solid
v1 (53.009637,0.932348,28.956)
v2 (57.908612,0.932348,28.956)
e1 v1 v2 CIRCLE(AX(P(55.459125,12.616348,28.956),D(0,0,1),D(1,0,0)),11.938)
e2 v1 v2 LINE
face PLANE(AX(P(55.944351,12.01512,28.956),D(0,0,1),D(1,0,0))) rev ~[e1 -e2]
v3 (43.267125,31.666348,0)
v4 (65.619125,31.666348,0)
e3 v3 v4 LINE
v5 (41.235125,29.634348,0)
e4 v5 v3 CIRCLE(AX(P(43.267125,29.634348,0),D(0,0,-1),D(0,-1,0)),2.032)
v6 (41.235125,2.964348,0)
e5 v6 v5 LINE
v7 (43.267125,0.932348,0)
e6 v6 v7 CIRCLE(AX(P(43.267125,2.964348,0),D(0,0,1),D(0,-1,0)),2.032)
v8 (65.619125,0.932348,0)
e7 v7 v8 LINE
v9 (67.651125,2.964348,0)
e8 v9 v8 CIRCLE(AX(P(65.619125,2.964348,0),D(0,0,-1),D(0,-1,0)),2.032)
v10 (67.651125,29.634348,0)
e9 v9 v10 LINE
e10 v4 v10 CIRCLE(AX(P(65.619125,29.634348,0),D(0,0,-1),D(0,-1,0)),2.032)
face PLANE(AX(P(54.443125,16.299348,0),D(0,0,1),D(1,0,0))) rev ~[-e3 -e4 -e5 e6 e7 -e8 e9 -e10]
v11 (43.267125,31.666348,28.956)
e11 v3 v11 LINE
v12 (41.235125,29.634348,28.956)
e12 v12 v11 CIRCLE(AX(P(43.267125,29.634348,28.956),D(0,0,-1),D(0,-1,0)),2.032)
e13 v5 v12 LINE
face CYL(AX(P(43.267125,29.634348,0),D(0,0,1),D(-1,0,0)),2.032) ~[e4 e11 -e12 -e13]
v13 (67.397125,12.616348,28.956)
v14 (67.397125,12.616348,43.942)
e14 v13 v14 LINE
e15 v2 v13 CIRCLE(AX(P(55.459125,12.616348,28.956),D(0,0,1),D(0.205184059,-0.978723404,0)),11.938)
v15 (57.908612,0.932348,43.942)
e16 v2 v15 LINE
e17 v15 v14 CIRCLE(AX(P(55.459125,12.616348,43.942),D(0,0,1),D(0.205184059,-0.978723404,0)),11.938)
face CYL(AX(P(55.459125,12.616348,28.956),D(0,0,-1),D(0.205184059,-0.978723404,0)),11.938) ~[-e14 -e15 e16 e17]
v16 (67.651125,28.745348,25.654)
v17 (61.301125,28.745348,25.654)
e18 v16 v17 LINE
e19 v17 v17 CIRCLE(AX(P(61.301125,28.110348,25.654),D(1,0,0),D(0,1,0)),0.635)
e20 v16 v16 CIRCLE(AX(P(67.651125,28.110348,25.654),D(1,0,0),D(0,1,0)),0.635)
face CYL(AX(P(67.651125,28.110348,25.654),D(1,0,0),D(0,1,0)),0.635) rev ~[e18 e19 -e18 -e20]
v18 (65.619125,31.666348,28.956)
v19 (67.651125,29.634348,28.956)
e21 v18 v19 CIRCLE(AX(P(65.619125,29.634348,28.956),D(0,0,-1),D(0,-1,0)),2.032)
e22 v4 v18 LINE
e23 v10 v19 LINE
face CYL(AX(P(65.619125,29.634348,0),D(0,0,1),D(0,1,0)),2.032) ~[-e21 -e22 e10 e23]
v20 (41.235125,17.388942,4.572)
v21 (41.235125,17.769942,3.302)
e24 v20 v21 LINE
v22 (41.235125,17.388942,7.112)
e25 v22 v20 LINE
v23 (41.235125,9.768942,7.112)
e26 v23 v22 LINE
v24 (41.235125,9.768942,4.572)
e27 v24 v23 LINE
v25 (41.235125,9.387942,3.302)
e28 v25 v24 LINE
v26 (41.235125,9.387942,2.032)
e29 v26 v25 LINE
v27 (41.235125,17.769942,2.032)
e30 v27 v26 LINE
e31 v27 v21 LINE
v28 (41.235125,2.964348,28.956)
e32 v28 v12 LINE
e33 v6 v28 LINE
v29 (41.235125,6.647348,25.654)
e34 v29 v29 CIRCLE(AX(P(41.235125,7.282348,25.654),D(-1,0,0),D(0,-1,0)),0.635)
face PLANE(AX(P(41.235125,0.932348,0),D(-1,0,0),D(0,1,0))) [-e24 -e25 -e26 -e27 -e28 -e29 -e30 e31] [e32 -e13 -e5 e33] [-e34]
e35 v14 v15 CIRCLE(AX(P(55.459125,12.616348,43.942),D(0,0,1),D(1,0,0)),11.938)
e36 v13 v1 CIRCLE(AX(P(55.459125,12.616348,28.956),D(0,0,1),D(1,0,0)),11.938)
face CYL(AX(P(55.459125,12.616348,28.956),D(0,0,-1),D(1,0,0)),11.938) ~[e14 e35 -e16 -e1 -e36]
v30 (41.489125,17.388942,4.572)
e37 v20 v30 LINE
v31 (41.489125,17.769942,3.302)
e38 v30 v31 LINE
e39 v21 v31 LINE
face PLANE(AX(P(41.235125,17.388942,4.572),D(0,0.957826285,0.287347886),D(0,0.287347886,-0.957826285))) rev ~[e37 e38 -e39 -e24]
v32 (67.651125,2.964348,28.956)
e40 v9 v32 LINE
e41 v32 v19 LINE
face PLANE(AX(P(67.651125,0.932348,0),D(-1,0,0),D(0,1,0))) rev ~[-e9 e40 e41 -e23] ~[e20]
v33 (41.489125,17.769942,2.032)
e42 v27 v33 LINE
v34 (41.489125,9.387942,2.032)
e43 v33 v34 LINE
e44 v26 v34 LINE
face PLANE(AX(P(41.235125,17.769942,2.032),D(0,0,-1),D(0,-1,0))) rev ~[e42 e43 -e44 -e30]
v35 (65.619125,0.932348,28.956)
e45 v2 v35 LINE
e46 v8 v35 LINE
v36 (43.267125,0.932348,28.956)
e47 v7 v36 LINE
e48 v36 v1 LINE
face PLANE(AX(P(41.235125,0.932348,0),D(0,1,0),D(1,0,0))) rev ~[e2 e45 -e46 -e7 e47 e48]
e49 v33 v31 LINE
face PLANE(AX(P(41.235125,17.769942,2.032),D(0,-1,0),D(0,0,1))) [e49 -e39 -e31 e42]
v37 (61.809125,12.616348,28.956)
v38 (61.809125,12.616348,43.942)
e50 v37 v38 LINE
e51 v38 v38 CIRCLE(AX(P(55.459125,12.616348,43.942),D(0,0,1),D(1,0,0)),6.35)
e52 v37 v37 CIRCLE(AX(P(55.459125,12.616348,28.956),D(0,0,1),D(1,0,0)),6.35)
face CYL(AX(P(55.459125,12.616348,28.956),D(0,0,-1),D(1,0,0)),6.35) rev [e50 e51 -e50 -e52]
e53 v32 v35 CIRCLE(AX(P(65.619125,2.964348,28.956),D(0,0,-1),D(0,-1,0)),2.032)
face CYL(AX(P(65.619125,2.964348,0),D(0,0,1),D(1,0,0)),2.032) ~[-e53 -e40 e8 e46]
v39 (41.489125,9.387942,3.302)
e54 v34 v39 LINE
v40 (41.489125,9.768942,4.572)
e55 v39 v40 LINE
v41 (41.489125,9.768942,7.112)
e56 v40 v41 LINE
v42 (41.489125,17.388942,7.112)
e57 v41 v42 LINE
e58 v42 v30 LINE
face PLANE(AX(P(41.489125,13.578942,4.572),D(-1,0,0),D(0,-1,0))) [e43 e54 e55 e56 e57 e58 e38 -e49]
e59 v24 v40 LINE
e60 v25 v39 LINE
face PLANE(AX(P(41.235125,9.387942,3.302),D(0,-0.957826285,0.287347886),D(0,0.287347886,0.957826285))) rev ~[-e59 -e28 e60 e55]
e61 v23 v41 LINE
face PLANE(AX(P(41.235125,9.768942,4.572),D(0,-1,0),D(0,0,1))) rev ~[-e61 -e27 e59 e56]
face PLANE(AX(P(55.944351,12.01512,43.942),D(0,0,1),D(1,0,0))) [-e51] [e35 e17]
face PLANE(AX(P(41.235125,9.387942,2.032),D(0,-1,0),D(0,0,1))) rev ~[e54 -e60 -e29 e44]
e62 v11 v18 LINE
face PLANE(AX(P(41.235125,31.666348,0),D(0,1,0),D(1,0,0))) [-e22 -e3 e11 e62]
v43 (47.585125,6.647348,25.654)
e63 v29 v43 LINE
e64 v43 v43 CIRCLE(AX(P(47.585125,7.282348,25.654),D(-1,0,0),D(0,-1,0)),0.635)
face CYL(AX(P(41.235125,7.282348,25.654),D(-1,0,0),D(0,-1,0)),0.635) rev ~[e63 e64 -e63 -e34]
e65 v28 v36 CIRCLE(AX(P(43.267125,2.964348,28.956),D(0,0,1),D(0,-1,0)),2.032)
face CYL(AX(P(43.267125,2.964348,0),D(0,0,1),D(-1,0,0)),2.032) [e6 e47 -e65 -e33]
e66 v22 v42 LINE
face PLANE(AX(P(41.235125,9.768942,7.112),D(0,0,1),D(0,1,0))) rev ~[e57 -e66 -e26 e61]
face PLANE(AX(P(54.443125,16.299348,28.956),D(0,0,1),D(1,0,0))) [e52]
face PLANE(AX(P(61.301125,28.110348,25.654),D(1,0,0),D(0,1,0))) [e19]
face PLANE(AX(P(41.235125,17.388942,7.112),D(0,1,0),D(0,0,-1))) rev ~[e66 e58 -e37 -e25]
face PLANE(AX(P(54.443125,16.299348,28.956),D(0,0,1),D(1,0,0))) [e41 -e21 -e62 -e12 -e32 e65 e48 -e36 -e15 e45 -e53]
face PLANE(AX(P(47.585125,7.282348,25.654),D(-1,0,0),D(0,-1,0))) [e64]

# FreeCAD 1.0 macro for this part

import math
import FreeCAD as App
import Part
import Sketcher
from FreeCAD import Vector
Q = App.Units.Quantity


def edges_at(feature, points):
    """Names of the edges that pass closest to the given points."""
    edges = feature.Shape.Edges
    near = lambda p: min(range(len(edges)), key=lambda i: edges[i].distToShape(Part.Vertex(*p))[0])
    return sorted({f"Edge{near(p) + 1}" for p in points})

doc = App.newDocument("Part")
body = doc.addObject("PartDesign::Body", "Body")

sketch1 = doc.addObject("Sketcher::SketchObject", "Sketch")
body.addObject(sketch1)
sketch1.AttachmentSupport = (doc.XY_Plane, [""])
sketch1.MapMode = "FlatFace"
sketch1.addGeometry(Part.Circle(Vector(0, 0, 0), Vector(0, 0, 1), 12), False)
sketch1.addConstraint([
    Sketcher.Constraint("Coincident", 0, 3, -1, 1),
    Sketcher.Constraint("Diameter", 0, Q("0.94 in")),
])
pad1 = doc.addObject("PartDesign::Pad", "Pad")
body.addObject(pad1)
pad1.Profile = sketch1
pad1.Length = Q("0.59 in")

sketch2 = doc.addObject("Sketcher::SketchObject", "Sketch001")
body.addObject(sketch2)
sketch2.AttachmentSupport = (doc.XY_Plane, [""])
sketch2.MapMode = "FlatFace"
sketch2.AttachmentOffset = App.Placement(Vector(0, 0, 0.59 * 25.4), App.Rotation())
sketch2.addGeometry(Part.Circle(Vector(0, 0, 0), Vector(0, 0, 1), 5), False)
sketch2.addConstraint([
    Sketcher.Constraint("Coincident", 0, 3, -1, 1),
    Sketcher.Constraint("Diameter", 0, Q("10.567176 mm")),
])
pocket1 = doc.addObject("PartDesign::Pocket", "Pocket")
body.addObject(pocket1)
pocket1.Profile = sketch2
pocket1.Length = Q("0.25 in")
body2 = doc.addObject("PartDesign::Body", "Body001")

sketch3 = doc.addObject("Sketcher::SketchObject", "Sketch002")
body2.addObject(sketch3)
sketch3.AttachmentSupport = (doc.getObject("XY_Plane001"), [""])
sketch3.MapMode = "FlatFace"
sketch3.addGeometry([
    Part.LineSegment(Vector(41, 32, 0), Vector(41, 1, 0)),
    Part.LineSegment(Vector(41, 1, 0), Vector(68, 1, 0)),
    Part.LineSegment(Vector(68, 1, 0), Vector(68, 32, 0)),
    Part.LineSegment(Vector(68, 32, 0), Vector(41, 32, 0)),
], False)
sketch3.addConstraint([
    Sketcher.Constraint("Coincident", 0, 2, 1, 1),
    Sketcher.Constraint("Coincident", 1, 2, 2, 1),
    Sketcher.Constraint("Coincident", 2, 2, 3, 1),
    Sketcher.Constraint("Coincident", 3, 2, 0, 1),
    Sketcher.Constraint("Vertical", 0),
    Sketcher.Constraint("Horizontal", 1),
    Sketcher.Constraint("Vertical", 2),
    Sketcher.Constraint("Horizontal", 3),
    Sketcher.Constraint("DistanceX", 1, 1, 1, 2, Q("1.04 in")),
    Sketcher.Constraint("DistanceY", 0, 2, 0, 1, Q("1.21 in")),
    Sketcher.Constraint("DistanceY", -1, 1, 0, 2, Q("0.932348 mm")),
    Sketcher.Constraint("DistanceX", -1, 1, 0, 2, Q("41.235125 mm")),
])
pad2 = doc.addObject("PartDesign::Pad", "Pad001")
body2.addObject(pad2)
pad2.Profile = sketch3
pad2.Length = Q("1.14 in")

sketch4 = doc.addObject("Sketcher::SketchObject", "Sketch003")
body2.addObject(sketch4)
sketch4.AttachmentSupport = (doc.getObject("YZ_Plane001"), [""])
sketch4.MapMode = "FlatFace"
sketch4.AttachmentOffset = App.Placement(Vector(0, 0, 41.235125), App.Rotation())
sketch4.addGeometry(Part.Circle(Vector(7.3, 25.7, 0), Vector(0, 0, 1), 0.6), False)
sketch4.addConstraint([
    Sketcher.Constraint("Diameter", 0, Q("0.05 in")),
    Sketcher.Constraint("DistanceY", -1, 1, 0, 3, Q("1.01 in")),
    Sketcher.Constraint("DistanceX", -1, 1, 0, 3, Q("7.282348 mm")),
])
pocket2 = doc.addObject("PartDesign::Pocket", "Pocket001")
body2.addObject(pocket2)
pocket2.Profile = sketch4
pocket2.Length = Q("0.25 in")
pocket2.Reversed = True

sketch5 = doc.addObject("Sketcher::SketchObject", "Sketch004")
body2.addObject(sketch5)
sketch5.AttachmentSupport = (doc.getObject("YZ_Plane001"), [""])
sketch5.MapMode = "FlatFace"
sketch5.AttachmentOffset = App.Placement(Vector(0, 0, 67.651125), App.Rotation())
sketch5.addGeometry(Part.Circle(Vector(28.1, 25.7, 0), Vector(0, 0, 1), 0.6), False)
sketch5.addConstraint([
    Sketcher.Constraint("Diameter", 0, Q("0.05 in")),
    Sketcher.Constraint("DistanceY", -1, 1, 0, 3, Q("1.01 in")),
    Sketcher.Constraint("DistanceX", -1, 1, 0, 3, Q("28.110348 mm")),
])
pocket3 = doc.addObject("PartDesign::Pocket", "Pocket002")
body2.addObject(pocket3)
pocket3.Profile = sketch5
pocket3.Length = Q("0.25 in")

sketch6 = doc.addObject("Sketcher::SketchObject", "Sketch005")
body2.addObject(sketch6)
sketch6.AttachmentSupport = (doc.getObject("XY_Plane001"), [""])
sketch6.MapMode = "FlatFace"
sketch6.AttachmentOffset = App.Placement(Vector(0, 0, 1.14 * 25.4), App.Rotation())
sketch6.addGeometry([
    Part.ArcOfCircle(Part.Circle(Vector(55, 13, 0), Vector(0, 0, 1), 12), math.radians(-78), math.radians(0)),
    Part.ArcOfCircle(Part.Circle(Vector(55, 13, 0), Vector(0, 0, 1), 12), math.radians(0), math.radians(282)),
    Part.Circle(Vector(55, 13, 0), Vector(0, 0, 1), 6),
], False)
sketch6.addConstraint([
    Sketcher.Constraint("Tangent", 0, 1, 1, 2),
    Sketcher.Constraint("Coincident", 1, 1, 0, 2),
    Sketcher.Constraint("Coincident", 2, 3, 0, 3),
    Sketcher.Constraint("Horizontal", 2, 3, 1, 1),
    Sketcher.Constraint("Diameter", 2, Q("0.5 in")),
    Sketcher.Constraint("Radius", 0, Q("0.47 in")),
    Sketcher.Constraint("DistanceY", 0, 1, 0, 3, Q("0.46 in")),
    Sketcher.Constraint("DistanceY", -1, 1, 0, 3, Q("12.616348 mm")),
    Sketcher.Constraint("DistanceX", -1, 1, 0, 1, Q("57.908612 mm")),
])
pad3 = doc.addObject("PartDesign::Pad", "Pad002")
body2.addObject(pad3)
pad3.Profile = sketch6
pad3.Length = Q("0.59 in")
doc.recompute()

fillet = doc.addObject("PartDesign::Fillet", "Fillet")
body2.addObject(fillet)
fillet.Base = (pad3, edges_at(pad3, [
    (41.235, 31.666, 14.478),
    (67.651, 31.666, 14.478),
    (41.235, 0.932, 14.478),
    (67.651, 0.932, 14.478),
]))
fillet.Radius = Q("0.08 in")

sketch7 = doc.addObject("Sketcher::SketchObject", "Sketch006")
body2.addObject(sketch7)
sketch7.AttachmentSupport = (doc.getObject("YZ_Plane001"), [""])
sketch7.MapMode = "FlatFace"
sketch7.AttachmentOffset = App.Placement(Vector(0, 0, 41.235125), App.Rotation())
sketch7.addGeometry([
    Part.LineSegment(Vector(9.4, 3.3, 0), Vector(9.8, 4.6, 0)),
    Part.LineSegment(Vector(9.8, 4.6, 0), Vector(9.8, 7.1, 0)),
    Part.LineSegment(Vector(9.8, 7.1, 0), Vector(17.4, 7.1, 0)),
    Part.LineSegment(Vector(17.4, 7.1, 0), Vector(17.4, 4.6, 0)),
    Part.LineSegment(Vector(17.4, 4.6, 0), Vector(17.8, 3.3, 0)),
    Part.LineSegment(Vector(17.8, 3.3, 0), Vector(17.8, 2, 0)),
    Part.LineSegment(Vector(17.8, 2, 0), Vector(9.4, 2, 0)),
    Part.LineSegment(Vector(9.4, 2, 0), Vector(9.4, 3.3, 0)),
], False)
sketch7.addConstraint([
    Sketcher.Constraint("Coincident", 0, 2, 1, 1),
    Sketcher.Constraint("Coincident", 1, 2, 2, 1),
    Sketcher.Constraint("Coincident", 2, 2, 3, 1),
    Sketcher.Constraint("Coincident", 3, 2, 4, 1),
    Sketcher.Constraint("Coincident", 4, 2, 5, 1),
    Sketcher.Constraint("Coincident", 5, 2, 6, 1),
    Sketcher.Constraint("Coincident", 6, 2, 7, 1),
    Sketcher.Constraint("Coincident", 7, 2, 0, 1),
    Sketcher.Constraint("Vertical", 1),
    Sketcher.Constraint("Horizontal", 2),
    Sketcher.Constraint("Vertical", 3),
    Sketcher.Constraint("Vertical", 5),
    Sketcher.Constraint("Horizontal", 6),
    Sketcher.Constraint("Vertical", 7),
    Sketcher.Constraint("Horizontal", 0, 2, 3, 2),
    Sketcher.Constraint("Horizontal", 4, 2, 7, 2),
    Sketcher.Constraint("Equal", 0, 4),
    Sketcher.Constraint("DistanceX", 2, 1, 2, 2, Q("0.3 in")),
    Sketcher.Constraint("DistanceY", 1, 1, 1, 2, Q("0.1 in")),
    Sketcher.Constraint("DistanceX", 6, 2, 6, 1, Q("0.33 in")),
    Sketcher.Constraint("DistanceY", 5, 2, 5, 1, Q("0.05 in")),
    Sketcher.Constraint("DistanceY", 5, 2, 3, 2, Q("0.1 in")),
    Sketcher.Constraint("DistanceY", -1, 1, 0, 2, Q("0.18 in")),
    Sketcher.Constraint("DistanceX", -1, 1, 0, 2, Q("9.768942 mm")),
])
pocket4 = doc.addObject("PartDesign::Pocket", "Pocket003")
body2.addObject(pocket4)
pocket4.Profile = sketch7
pocket4.Length = Q("0.01 in")
pocket4.Reversed = True
body.Visibility = False

doc.recompute()
